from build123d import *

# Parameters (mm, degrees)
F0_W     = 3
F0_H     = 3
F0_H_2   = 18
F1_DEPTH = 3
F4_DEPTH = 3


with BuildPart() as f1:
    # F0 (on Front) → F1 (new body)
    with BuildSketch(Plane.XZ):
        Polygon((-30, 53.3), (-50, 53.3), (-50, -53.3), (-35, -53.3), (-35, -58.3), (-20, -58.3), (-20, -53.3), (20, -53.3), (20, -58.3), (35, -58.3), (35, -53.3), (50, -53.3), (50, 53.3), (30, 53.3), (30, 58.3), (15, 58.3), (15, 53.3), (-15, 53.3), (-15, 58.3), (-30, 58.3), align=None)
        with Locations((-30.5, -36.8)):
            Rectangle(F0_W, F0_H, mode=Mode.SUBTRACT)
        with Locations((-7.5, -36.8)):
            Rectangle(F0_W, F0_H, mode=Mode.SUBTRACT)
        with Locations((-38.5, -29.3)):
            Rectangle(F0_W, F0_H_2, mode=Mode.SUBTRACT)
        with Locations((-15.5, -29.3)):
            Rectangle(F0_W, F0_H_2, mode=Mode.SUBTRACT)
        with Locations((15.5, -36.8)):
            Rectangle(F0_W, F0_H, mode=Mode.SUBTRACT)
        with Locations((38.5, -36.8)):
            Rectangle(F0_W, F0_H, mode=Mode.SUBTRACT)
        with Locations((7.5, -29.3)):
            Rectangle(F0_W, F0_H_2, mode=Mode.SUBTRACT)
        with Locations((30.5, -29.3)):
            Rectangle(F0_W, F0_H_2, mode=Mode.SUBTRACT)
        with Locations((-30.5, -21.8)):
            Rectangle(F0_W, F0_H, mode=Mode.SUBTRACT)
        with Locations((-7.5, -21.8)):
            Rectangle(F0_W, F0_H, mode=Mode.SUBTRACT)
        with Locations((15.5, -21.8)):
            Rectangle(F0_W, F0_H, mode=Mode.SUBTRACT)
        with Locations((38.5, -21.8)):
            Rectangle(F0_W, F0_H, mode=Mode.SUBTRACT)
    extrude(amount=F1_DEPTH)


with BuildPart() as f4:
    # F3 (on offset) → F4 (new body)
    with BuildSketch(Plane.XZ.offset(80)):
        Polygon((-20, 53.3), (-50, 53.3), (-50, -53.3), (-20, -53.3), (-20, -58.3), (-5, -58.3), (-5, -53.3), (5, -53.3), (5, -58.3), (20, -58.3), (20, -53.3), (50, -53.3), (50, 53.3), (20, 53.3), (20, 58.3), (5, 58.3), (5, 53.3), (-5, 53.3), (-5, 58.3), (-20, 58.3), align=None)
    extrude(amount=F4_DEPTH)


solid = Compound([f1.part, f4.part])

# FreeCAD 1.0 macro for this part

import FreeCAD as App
import Part
import Sketcher

V = App.Vector


def add_polygon(sketch, points):
    """Adds a closed chain of lines whose ends are joined by coincident constraints."""
    first, n = sketch.GeometryCount, len(points)
    for a, b in zip(points, points[1:] + points[:1]):
        sketch.addGeometry(Part.LineSegment(App.Vector(*a, 0), App.Vector(*b, 0)), False)
    for i in range(n):
        sketch.addConstraint(Sketcher.Constraint("Coincident", first + i, 2, first + (i + 1) % n, 1))

doc = App.newDocument("Part")
body = doc.addObject("PartDesign::Body", "Body")

sketch1 = body.newObject("Sketcher::SketchObject", "Sketch")
sketch1.AttachmentSupport = (doc.getObject("XZ_Plane"), [""])
sketch1.MapMode = "FlatFace"
add_polygon(sketch1, [(-30, 53.3), (-50, 53.3), (-50, -53.3), (-35, -53.3), (-35, -58.3), (-20, -58.3), (-20, -53.3), (20, -53.3), (20, -58.3), (35, -58.3), (35, -53.3), (50, -53.3), (50, 53.3), (30, 53.3), (30, 58.3), (15, 58.3), (15, 53.3), (-15, 53.3), (-15, 58.3), (-30, 58.3)])
add_polygon(sketch1, [(-29, -38.3), (-32, -38.3), (-32, -35.3), (-29, -35.3)])
add_polygon(sketch1, [(-6, -38.3), (-9, -38.3), (-9, -35.3), (-6, -35.3)])
add_polygon(sketch1, [(17, -38.3), (14, -38.3), (14, -35.3), (17, -35.3)])
add_polygon(sketch1, [(40, -38.3), (37, -38.3), (37, -35.3), (40, -35.3)])
add_polygon(sketch1, [(-37, -38.3), (-40, -38.3), (-40, -20.3), (-37, -20.3)])
add_polygon(sketch1, [(-14, -38.3), (-17, -38.3), (-17, -20.3), (-14, -20.3)])
add_polygon(sketch1, [(-29, -23.3), (-32, -23.3), (-32, -20.3), (-29, -20.3)])
add_polygon(sketch1, [(-6, -23.3), (-9, -23.3), (-9, -20.3), (-6, -20.3)])
add_polygon(sketch1, [(9, -38.3), (6, -38.3), (6, -20.3), (9, -20.3)])
add_polygon(sketch1, [(32, -38.3), (29, -38.3), (29, -20.3), (32, -20.3)])
add_polygon(sketch1, [(17, -23.3), (14, -23.3), (14, -20.3), (17, -20.3)])
add_polygon(sketch1, [(40, -23.3), (37, -23.3), (37, -20.3), (40, -20.3)])
sketch1.addConstraint([
    Sketcher.Constraint("Horizontal", 0),
    Sketcher.Constraint("Vertical", 1),
    Sketcher.Constraint("Horizontal", 2),
    Sketcher.Constraint("Vertical", 3),
    Sketcher.Constraint("Horizontal", 4),
    Sketcher.Constraint("Vertical", 5),
    Sketcher.Constraint("Horizontal", 6),
    Sketcher.Constraint("Vertical", 7),
    Sketcher.Constraint("Horizontal", 8),
    Sketcher.Constraint("Vertical", 9),
    Sketcher.Constraint("Horizontal", 10),
    Sketcher.Constraint("Vertical", 11),
    Sketcher.Constraint("Horizontal", 12),
    Sketcher.Constraint("Vertical", 13),
    Sketcher.Constraint("Horizontal", 14),
    Sketcher.Constraint("Vertical", 15),
    Sketcher.Constraint("Horizontal", 16),
    Sketcher.Constraint("Vertical", 17),
    Sketcher.Constraint("Horizontal", 18),
    Sketcher.Constraint("Vertical", 19),
    Sketcher.Constraint("Horizontal", 20),
    Sketcher.Constraint("Vertical", 21),
    Sketcher.Constraint("Horizontal", 22),
    Sketcher.Constraint("Vertical", 23),
    Sketcher.Constraint("Horizontal", 24),
    Sketcher.Constraint("Vertical", 25),
    Sketcher.Constraint("Horizontal", 26),
    Sketcher.Constraint("Vertical", 27),
    Sketcher.Constraint("Horizontal", 28),
    Sketcher.Constraint("Vertical", 29),
    Sketcher.Constraint("Horizontal", 30),
    Sketcher.Constraint("Vertical", 31),
    Sketcher.Constraint("Horizontal", 32),
    Sketcher.Constraint("Vertical", 33),
    Sketcher.Constraint("Horizontal", 34),
    Sketcher.Constraint("Vertical", 35),
    Sketcher.Constraint("Horizontal", 36),
    Sketcher.Constraint("Vertical", 37),
    Sketcher.Constraint("Horizontal", 38),
    Sketcher.Constraint("Vertical", 39),
    Sketcher.Constraint("Horizontal", 40),
    Sketcher.Constraint("Vertical", 41),
    Sketcher.Constraint("Horizontal", 42),
    Sketcher.Constraint("Vertical", 43),
    Sketcher.Constraint("Horizontal", 44),
    Sketcher.Constraint("Vertical", 45),
    Sketcher.Constraint("Horizontal", 46),
    Sketcher.Constraint("Vertical", 47),
    Sketcher.Constraint("Horizontal", 48),
    Sketcher.Constraint("Vertical", 49),
    Sketcher.Constraint("Horizontal", 50),
    Sketcher.Constraint("Vertical", 51),
    Sketcher.Constraint("Horizontal", 52),
    Sketcher.Constraint("Vertical", 53),
    Sketcher.Constraint("Horizontal", 54),
    Sketcher.Constraint("Vertical", 55),
    Sketcher.Constraint("Horizontal", 56),
    Sketcher.Constraint("Vertical", 57),
    Sketcher.Constraint("Horizontal", 58),
    Sketcher.Constraint("Vertical", 59),
    Sketcher.Constraint("Horizontal", 60),
    Sketcher.Constraint("Vertical", 61),
    Sketcher.Constraint("Horizontal", 62),
    Sketcher.Constraint("Vertical", 63),
    Sketcher.Constraint("Horizontal", 64),
    Sketcher.Constraint("Vertical", 65),
    Sketcher.Constraint("Horizontal", 66),
    Sketcher.Constraint("Vertical", 67),
    Sketcher.Constraint("Symmetric", 0, 2, 10, 2, -1, 1),
    Sketcher.Constraint("Symmetric", 4, 2, 7, 2, -2),
    Sketcher.Constraint("Symmetric", 2, 2, 9, 2, -2),
    Sketcher.Constraint("Symmetric", 14, 2, 17, 2, -2),
    Sketcher.Constraint("Symmetric", 12, 2, 19, 2, -2),
    Sketcher.Constraint("Symmetric", 35, 2, 36, 2, -2),
    Sketcher.Constraint("Symmetric", 31, 2, 40, 2, -2),
    Sketcher.Constraint("Symmetric", 27, 2, 52, 2, -2),
    Sketcher.Constraint("Symmetric", 50, 2, 53, 2, -2),
    Sketcher.Constraint("Symmetric", 23, 2, 56, 2, -2),
    Sketcher.Constraint("Symmetric", 46, 2, 57, 2, -2),
    Sketcher.Constraint("Symmetric", 42, 2, 61, 2, -2),
    Sketcher.Constraint("Symmetric", 38, 2, 65, 2, -2),
    Sketcher.Constraint("Horizontal", 2, 2, 5, 2),
    Sketcher.Constraint("Horizontal", 12, 2, 15, 2),
    Sketcher.Constraint("Horizontal", 23, 2, 24, 2),
    Sketcher.Constraint("Horizontal", 22, 2, 25, 2),
    Sketcher.Constraint("Horizontal", 27, 2, 28, 2),
    Sketcher.Constraint("Horizontal", 26, 2, 29, 2),
    Sketcher.Constraint("Horizontal", 31, 2, 32, 2),
    Sketcher.Constraint("Horizontal", 30, 2, 33, 2),
    Sketcher.Constraint("Horizontal", 38, 2, 41, 2),
    Sketcher.Constraint("Horizontal", 42, 2, 45, 2),
    Sketcher.Constraint("Horizontal", 47, 2, 48, 2),
    Sketcher.Constraint("Horizontal", 46, 2, 49, 2),
    Sketcher.Constraint("Horizontal", 51, 2, 60, 2),
    Sketcher.Constraint("Horizontal", 63, 2, 64, 2),
    Sketcher.Constraint("Vertical", 21, 2, 44, 2),
    Sketcher.Constraint("Vertical", 25, 2, 48, 2),
    Sketcher.Constraint("Vertical", 29, 2, 60, 2),
    Sketcher.Constraint("Vertical", 31, 2, 62, 2),
    Sketcher.Constraint("Vertical", 33, 2, 64, 2),
    Sketcher.Constraint("Vertical", 35, 2, 66, 2),
    Sketcher.Constraint("Equal", 2, 4),
    Sketcher.Constraint("Equal", 10, 14),
    Sketcher.Constraint("Equal", 22, 24),
    Sketcher.Constraint("Equal", 26, 28),
    Sketcher.Constraint("Equal", 30, 32),
    Sketcher.Constraint("Equal", 50, 52),
    Sketcher.Constraint("Equal", 54, 56),
    Sketcher.Constraint("Equal", 9, 13),
    Sketcher.Constraint("Equal", 66, 21),
    Sketcher.Constraint("Equal", 35, 45),
    Sketcher.Constraint("DistanceX", 0, 2, 0, 1, 20.0),
    Sketcher.Constraint("DistanceX", 2, 1, 2, 2, 15.0),
    Sketcher.Constraint("DistanceX", 6, 1, 6, 2, 40.0),
    Sketcher.Constraint("DistanceX", 20, 2, 20, 1, 3.0),
    Sketcher.Constraint("DistanceY", 3, 2, 3, 1, 5.0),
    Sketcher.Constraint("DistanceY", 37, 1, 37, 2, 18.0),
    Sketcher.Constraint("DistanceY", 1, 2, 1, 1, 106.6),
    Sketcher.Constraint("DistanceX", 20, 2, -1, 1, 32.0),
    Sketcher.Constraint("DistanceX", 24, 2, -1, 1, 9.0),
    Sketcher.Constraint("DistanceX", -1, 1, 28, 2, 14.0),
    Sketcher.Constraint("DistanceX", -1, 1, 32, 2, 37.0),
    Sketcher.Constraint("DistanceY", 20, 2, -1, 1, 38.3),
])
pad1 = body.newObject("PartDesign::Pad", "Pad")
pad1.Profile = sketch1
pad1.Length = 3
body2 = doc.addObject("PartDesign::Body", "Body001")

sketch2 = body2.newObject("Sketcher::SketchObject", "Sketch001")
sketch2.AttachmentSupport = (doc.getObject("XZ_Plane001"), [""])
sketch2.MapMode = "FlatFace"
sketch2.AttachmentOffset = App.Placement(V(0, 0, 80), App.Rotation())
add_polygon(sketch2, [(-20, 53.3), (-50, 53.3), (-50, -53.3), (-20, -53.3), (-20, -58.3), (-5, -58.3), (-5, -53.3), (5, -53.3), (5, -58.3), (20, -58.3), (20, -53.3), (50, -53.3), (50, 53.3), (20, 53.3), (20, 58.3), (5, 58.3), (5, 53.3), (-5, 53.3), (-5, 58.3), (-20, 58.3)])
sketch2.addConstraint([
    Sketcher.Constraint("Horizontal", 0),
    Sketcher.Constraint("Vertical", 1),
    Sketcher.Constraint("Horizontal", 2),
    Sketcher.Constraint("Vertical", 3),
    Sketcher.Constraint("Horizontal", 4),
    Sketcher.Constraint("Vertical", 5),
    Sketcher.Constraint("Horizontal", 6),
    Sketcher.Constraint("Vertical", 7),
    Sketcher.Constraint("Horizontal", 8),
    Sketcher.Constraint("Vertical", 9),
    Sketcher.Constraint("Horizontal", 10),
    Sketcher.Constraint("Vertical", 11),
    Sketcher.Constraint("Horizontal", 12),
    Sketcher.Constraint("Vertical", 13),
    Sketcher.Constraint("Horizontal", 14),
    Sketcher.Constraint("Vertical", 15),
    Sketcher.Constraint("Horizontal", 16),
    Sketcher.Constraint("Vertical", 17),
    Sketcher.Constraint("Horizontal", 18),
    Sketcher.Constraint("Vertical", 19),
    Sketcher.Constraint("Symmetric", 0, 2, 10, 2, -1, 1),
    Sketcher.Constraint("Symmetric", 2, 2, 12, 2, -1, 1),
    Sketcher.Constraint("Symmetric", 4, 2, 14, 2, -1, 1),
    Sketcher.Constraint("Symmetric", 6, 2, 16, 2, -1, 1),
    Sketcher.Constraint("Symmetric", 8, 2, 18, 2, -1, 1),
    Sketcher.Constraint("Symmetric", 4, 2, 7, 2, -2),
    Sketcher.Constraint("Symmetric", 2, 2, 9, 2, -2),
    Sketcher.Constraint("Horizontal", 2, 2, 5, 2),
    Sketcher.Constraint("DistanceX", 0, 2, 0, 1, 30.0),
    Sketcher.Constraint("DistanceX", 4, 1, 4, 2, 15.0),
    Sketcher.Constraint("DistanceX", 6, 1, 6, 2, 10.0),
    Sketcher.Constraint("DistanceY", 3, 2, 3, 1, 5.0),
    Sketcher.Constraint("DistanceY", 1, 2, 1, 1, 106.6),
])
pad2 = body2.newObject("PartDesign::Pad", "Pad001")
pad2.Profile = sketch2
pad2.Length = 3

doc.recompute()
